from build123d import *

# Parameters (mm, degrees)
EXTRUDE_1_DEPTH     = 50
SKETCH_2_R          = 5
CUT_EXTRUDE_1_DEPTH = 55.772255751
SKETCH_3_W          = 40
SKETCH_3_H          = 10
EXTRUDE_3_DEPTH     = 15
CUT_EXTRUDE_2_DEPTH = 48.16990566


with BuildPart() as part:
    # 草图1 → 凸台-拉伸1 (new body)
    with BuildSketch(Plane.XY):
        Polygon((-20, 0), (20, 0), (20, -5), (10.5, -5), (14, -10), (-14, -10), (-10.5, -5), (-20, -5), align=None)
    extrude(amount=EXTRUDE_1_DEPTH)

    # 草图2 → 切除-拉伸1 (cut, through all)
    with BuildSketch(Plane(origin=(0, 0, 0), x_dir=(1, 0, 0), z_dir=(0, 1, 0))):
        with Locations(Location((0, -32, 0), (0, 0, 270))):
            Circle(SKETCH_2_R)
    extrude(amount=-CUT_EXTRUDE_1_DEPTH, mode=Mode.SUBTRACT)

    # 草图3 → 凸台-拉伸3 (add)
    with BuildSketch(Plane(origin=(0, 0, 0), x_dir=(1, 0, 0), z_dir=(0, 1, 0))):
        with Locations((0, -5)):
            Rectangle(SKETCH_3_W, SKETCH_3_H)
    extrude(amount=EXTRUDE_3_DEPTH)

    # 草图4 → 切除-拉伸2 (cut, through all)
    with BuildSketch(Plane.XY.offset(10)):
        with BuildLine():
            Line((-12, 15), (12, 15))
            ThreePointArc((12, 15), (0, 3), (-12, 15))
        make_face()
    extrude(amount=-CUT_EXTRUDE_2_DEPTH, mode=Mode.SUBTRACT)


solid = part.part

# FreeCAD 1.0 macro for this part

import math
import FreeCAD as App
import Part
import Sketcher

V = App.Vector
Q = App.Units.Quantity

doc = App.newDocument("Part")
params = doc.addObject("Spreadsheet::Sheet", "Params")
for row, (alias, value) in enumerate([
    ("sketch1_width", "40 mm"),
    ("sketch1_width2", "28 mm"),
    ("sketch1_height", "5 mm"),
    ("sketch1_width3", "9.5 mm"),
    ("pad1_length", "50 mm"),
    ("sketch2_diameter", "10 mm"),
    ("sketch3_width", "40 mm"),
    ("sketch3_height", "10 mm"),
    ("pad2_length", "15 mm"),
    ("sketch4_radius", "12 mm"),
], start=1):
    params.set(f"A{row}", alias)
    params.set(f"B{row}", "=" + value)
    params.setAlias(f"B{row}", alias)

body = doc.addObject("PartDesign::Body", "Body")

# Sketch on XY plane
sketch1 = body.newObject("Sketcher::SketchObject", "Sketch")
sketch1.AttachmentSupport = (doc.getObject("XY_Plane"), [""])
sketch1.MapMode = "FlatFace"
sketch1.addGeometry(Part.LineSegment(V(20, 0, 0), V(-20, 0, 0)), False)
sketch1.addGeometry(Part.LineSegment(V(-20, 0, 0), V(-20, -5, 0)), False)
sketch1.addGeometry(Part.LineSegment(V(-20, -5, 0), V(-10, -5, 0)), False)
sketch1.addGeometry(Part.LineSegment(V(-10, -5, 0), V(-14, -10, 0)), False)
sketch1.addGeometry(Part.LineSegment(V(-14, -10, 0), V(14, -10, 0)), False)
sketch1.addGeometry(Part.LineSegment(V(14, -10, 0), V(10, -5, 0)), False)
sketch1.addGeometry(Part.LineSegment(V(10, -5, 0), V(20, -5, 0)), False)
sketch1.addGeometry(Part.LineSegment(V(20, -5, 0), V(20, 0, 0)), False)
sketch1.addConstraint(Sketcher.Constraint("Coincident", 0, 2, 1, 1))
sketch1.addConstraint(Sketcher.Constraint("Coincident", 1, 2, 2, 1))
sketch1.addConstraint(Sketcher.Constraint("Coincident", 2, 2, 3, 1))
sketch1.addConstraint(Sketcher.Constraint("Coincident", 3, 2, 4, 1))
sketch1.addConstraint(Sketcher.Constraint("Coincident", 4, 2, 5, 1))
sketch1.addConstraint(Sketcher.Constraint("Coincident", 5, 2, 6, 1))
sketch1.addConstraint(Sketcher.Constraint("Coincident", 6, 2, 7, 1))
sketch1.addConstraint(Sketcher.Constraint("Coincident", 7, 2, 0, 1))
sketch1.addConstraint(Sketcher.Constraint("Horizontal", 0))
sketch1.addConstraint(Sketcher.Constraint("Vertical", 1))
sketch1.addConstraint(Sketcher.Constraint("Horizontal", 2))
sketch1.addConstraint(Sketcher.Constraint("Horizontal", 4))
sketch1.addConstraint(Sketcher.Constraint("Horizontal", 6))
sketch1.addConstraint(Sketcher.Constraint("Vertical", 7))
sketch1.addConstraint(Sketcher.Constraint("Symmetric", 0, 2, 7, 2, -1, 1))
sketch1.addConstraint(Sketcher.Constraint("Symmetric", 2, 2, 5, 2, -2))
sketch1.addConstraint(Sketcher.Constraint("Equal", 3, 5))
sketch1.addConstraint(Sketcher.Constraint("DistanceX", 0, 2, 0, 1, Q("40 mm")))
sketch1.addConstraint(Sketcher.Constraint("DistanceX", 4, 1, 4, 2, Q("28 mm")))
sketch1.addConstraint(Sketcher.Constraint("DistanceY", 1, 2, 1, 1, Q("5 mm")))
sketch1.addConstraint(Sketcher.Constraint("DistanceX", 2, 1, 2, 2, Q("9.5 mm")))
sketch1.addConstraint(Sketcher.Constraint("DistanceY", 3, 2, -1, 1, Q("10 mm")))
sketch1.setExpression("Constraints[17]", "Params.sketch1_width")
sketch1.setExpression("Constraints[18]", "Params.sketch1_width2")
sketch1.setExpression("Constraints[19]", "Params.sketch1_height")
sketch1.setExpression("Constraints[20]", "Params.sketch1_width3")
pad1 = body.newObject("PartDesign::Pad", "Pad")
pad1.Profile = sketch1
pad1.setExpression("Length", "Params.pad1_length")

# Sketch on XZ plane
sketch2 = body.newObject("Sketcher::SketchObject", "Sketch001")
sketch2.AttachmentSupport = (doc.getObject("XZ_Plane"), [""])
sketch2.MapMode = "FlatFace"
sketch2.addGeometry(Part.Circle(V(0, 32, 0), V(0, 0, 1), 5), False)
sketch2.addConstraint(Sketcher.Constraint("PointOnObject", 0, 3, -2))
sketch2.addConstraint(Sketcher.Constraint("Diameter", 0, Q("10 mm")))
sketch2.addConstraint(Sketcher.Constraint("DistanceY", -1, 1, 0, 3, Q("32 mm")))
sketch2.setExpression("Constraints[1]", "Params.sketch2_diameter")
pocket1 = body.newObject("PartDesign::Pocket", "Pocket")
pocket1.Profile = sketch2
pocket1.Type = "ThroughAll"
pocket1.Reversed = True

# Sketch on XZ plane
sketch3 = body.newObject("Sketcher::SketchObject", "Sketch002")
sketch3.AttachmentSupport = (doc.getObject("XZ_Plane"), [""])
sketch3.MapMode = "FlatFace"
sketch3.addGeometry(Part.LineSegment(V(-20, 0, 0), V(-20, 10, 0)), False)
sketch3.addGeometry(Part.LineSegment(V(-20, 10, 0), V(20, 10, 0)), False)
sketch3.addGeometry(Part.LineSegment(V(20, 10, 0), V(20, 0, 0)), False)
sketch3.addGeometry(Part.LineSegment(V(20, 0, 0), V(-20, 0, 0)), False)
sketch3.addConstraint(Sketcher.Constraint("Coincident", 0, 2, 1, 1))
sketch3.addConstraint(Sketcher.Constraint("Coincident", 1, 2, 2, 1))
sketch3.addConstraint(Sketcher.Constraint("Coincident", 2, 2, 3, 1))
sketch3.addConstraint(Sketcher.Constraint("Coincident", 3, 2, 0, 1))
sketch3.addConstraint(Sketcher.Constraint("Vertical", 0))
sketch3.addConstraint(Sketcher.Constraint("Horizontal", 1))
sketch3.addConstraint(Sketcher.Constraint("Vertical", 2))
sketch3.addConstraint(Sketcher.Constraint("Horizontal", 3))
sketch3.addConstraint(Sketcher.Constraint("Symmetric", 2, 2, 3, 2, -1, 1))
sketch3.addConstraint(Sketcher.Constraint("DistanceX", 1, 1, 1, 2, Q("40 mm")))
sketch3.addConstraint(Sketcher.Constraint("DistanceY", 0, 1, 0, 2, Q("10 mm")))
sketch3.setExpression("Constraints[9]", "Params.sketch3_width")
sketch3.setExpression("Constraints[10]", "Params.sketch3_height")
pad2 = body.newObject("PartDesign::Pad", "Pad001")
pad2.Profile = sketch3
pad2.setExpression("Length", "Params.pad2_length")
pad2.Reversed = True

# Sketch on XY plane
sketch4 = body.newObject("Sketcher::SketchObject", "Sketch003")
sketch4.AttachmentSupport = (doc.getObject("XY_Plane"), [""])
sketch4.MapMode = "FlatFace"
sketch4.AttachmentOffset = App.Placement(V(0, 0, 10), App.Rotation())
sketch4.addGeometry(Part.LineSegment(V(12, 15, 0), V(-12, 15, 0)), False)
sketch4.addGeometry(Part.ArcOfCircle(Part.Circle(V(0, 15, 0), V(0, 0, 1), 12), math.radians(180), math.radians(360)), False)
sketch4.addConstraint(Sketcher.Constraint("Coincident", 0, 1, 1, 2))
sketch4.addConstraint(Sketcher.Constraint("Coincident", 1, 1, 0, 2))
sketch4.addConstraint(Sketcher.Constraint("Horizontal", 0))
sketch4.addConstraint(Sketcher.Constraint("PointOnObject", 1, 3, -2))
sketch4.addConstraint(Sketcher.Constraint("Horizontal", 1, 3, 0, 1))
sketch4.addConstraint(Sketcher.Constraint("Radius", 1, Q("12 mm")))
sketch4.addConstraint(Sketcher.Constraint("DistanceY", -1, 1, 1, 3, Q("15 mm")))
sketch4.setExpression("Constraints[5]", "Params.sketch4_radius")
pocket2 = body.newObject("PartDesign::Pocket", "Pocket001")
pocket2.Profile = sketch4
pocket2.Type = "ThroughAll"

doc.recompute()
